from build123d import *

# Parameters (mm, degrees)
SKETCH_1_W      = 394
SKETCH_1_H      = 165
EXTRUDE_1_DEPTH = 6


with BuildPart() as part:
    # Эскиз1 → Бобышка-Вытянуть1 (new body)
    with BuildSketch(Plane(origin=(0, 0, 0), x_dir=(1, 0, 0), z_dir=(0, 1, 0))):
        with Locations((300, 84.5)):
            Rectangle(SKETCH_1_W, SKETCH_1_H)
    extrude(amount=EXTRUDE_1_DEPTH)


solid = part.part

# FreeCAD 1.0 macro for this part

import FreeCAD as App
import Part
import Sketcher

doc = App.newDocument("Part")
body = doc.addObject("PartDesign::Body", "Body")

# Sketch on XZ plane
sketch1 = doc.addObject("Sketcher::SketchObject", "Sketch")
body.addObject(sketch1)
sketch1.AttachmentSupport = (doc.XZ_Plane, [""])
sketch1.MapMode = "FlatFace"
sketch1.addGeometry([
    Part.LineSegment(App.Vector(103, -167, 0), App.Vector(103, -2, 0)),
    Part.LineSegment(App.Vector(103, -2, 0), App.Vector(497, -2, 0)),
    Part.LineSegment(App.Vector(497, -2, 0), App.Vector(497, -167, 0)),
    Part.LineSegment(App.Vector(497, -167, 0), App.Vector(103, -167, 0)),
], False)
sketch1.addConstraint([
    Sketcher.Constraint("Coincident", 0, 2, 1, 1),
    Sketcher.Constraint("Coincident", 1, 2, 2, 1),
    Sketcher.Constraint("Coincident", 2, 2, 3, 1),
    Sketcher.Constraint("Coincident", 3, 2, 0, 1),
    Sketcher.Constraint("Vertical", 0),
    Sketcher.Constraint("Horizontal", 1),
    Sketcher.Constraint("Vertical", 2),
    Sketcher.Constraint("Horizontal", 3),
    Sketcher.Constraint("DistanceX", 1, 1, 1, 2, 394.0),
    Sketcher.Constraint("DistanceY", 0, 1, 0, 2, 165.0),
    Sketcher.Constraint("DistanceX", -1, 1, 0, 2, 103.0),
    Sketcher.Constraint("DistanceY", 0, 2, -1, 1, 2.0),
])
pad1 = doc.addObject("PartDesign::Pad", "Pad")
body.addObject(pad1)
pad1.Profile = sketch1
pad1.Length = 6
pad1.Reversed = True

doc.recompute()
